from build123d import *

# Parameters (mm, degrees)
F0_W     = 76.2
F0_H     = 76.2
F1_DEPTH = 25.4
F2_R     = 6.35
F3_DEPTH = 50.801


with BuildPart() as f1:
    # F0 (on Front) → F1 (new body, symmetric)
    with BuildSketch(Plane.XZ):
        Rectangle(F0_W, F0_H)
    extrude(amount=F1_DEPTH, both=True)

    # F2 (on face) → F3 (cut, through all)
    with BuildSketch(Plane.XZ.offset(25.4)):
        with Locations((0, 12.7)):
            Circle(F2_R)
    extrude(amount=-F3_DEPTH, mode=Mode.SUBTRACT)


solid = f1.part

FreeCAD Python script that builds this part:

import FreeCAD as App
import Part
import Sketcher

V = App.Vector
Q = App.Units.Quantity

doc = App.newDocument("Part")
params = doc.addObject("Spreadsheet::Sheet", "Params")
for row, (alias, value) in enumerate([
    ("sketch1_width", "3 in"),
    ("pad1_length", "2 in"),
    ("sketch2_diameter", "0.5 in"),
], start=1):
    params.set(f"A{row}", alias)
    params.set(f"B{row}", "=" + value)
    params.setAlias(f"B{row}", alias)

body = doc.addObject("PartDesign::Body", "Body")

# Sketch on XZ plane
sketch1 = doc.addObject("Sketcher::SketchObject", "Sketch")
body.addObject(sketch1)
sketch1.AttachmentSupport = (doc.XZ_Plane, [""])
sketch1.MapMode = "FlatFace"
sketch1.addGeometry([
    Part.LineSegment(V(-38.1, 38.1, 0), V(-38.1, -38.1, 0)),
    Part.LineSegment(V(-38.1, -38.1, 0), V(38.1, -38.1, 0)),
    Part.LineSegment(V(38.1, -38.1, 0), V(38.1, 38.1, 0)),
    Part.LineSegment(V(38.1, 38.1, 0), V(-38.1, 38.1, 0)),
], False)
sketch1.addConstraint([
    Sketcher.Constraint("Coincident", 0, 2, 1, 1),
    Sketcher.Constraint("Coincident", 1, 2, 2, 1),
    Sketcher.Constraint("Coincident", 2, 2, 3, 1),
    Sketcher.Constraint("Coincident", 3, 2, 0, 1),
    Sketcher.Constraint("Vertical", 0),
    Sketcher.Constraint("Horizontal", 1),
    Sketcher.Constraint("Vertical", 2),
    Sketcher.Constraint("Horizontal", 3),
    Sketcher.Constraint("Symmetric", 0, 2, 2, 2, -1, 1),
    Sketcher.Constraint("Equal", 3, 0),
    Sketcher.Constraint("DistanceX", 1, 1, 1, 2, Q("3 in")),
])
sketch1.setExpression("Constraints[10]", "Params.sketch1_width")
pad1 = doc.addObject("PartDesign::Pad", "Pad")
body.addObject(pad1)
pad1.Profile = sketch1
pad1.setExpression("Length", "Params.pad1_length")
pad1.Midplane = True

# Sketch on XZ plane
sketch2 = doc.addObject("Sketcher::SketchObject", "Sketch001")
body.addObject(sketch2)
sketch2.AttachmentSupport = (doc.XZ_Plane, [""])
sketch2.MapMode = "FlatFace"
sketch2.AttachmentOffset = App.Placement(V(0, 0, 1 * 25.4), App.Rotation())
sketch2.addGeometry(Part.Circle(V(0, 12.7, 0), V(0, 0, 1), 6.35), False)
sketch2.addConstraint([
    Sketcher.Constraint("PointOnObject", 0, 3, -2),
    Sketcher.Constraint("Diameter", 0, Q("0.5 in")),
    Sketcher.Constraint("DistanceY", -1, 1, 0, 3, Q("0.5 in")),
])
sketch2.setExpression("Constraints[1]", "Params.sketch2_diameter")
pocket1 = doc.addObject("PartDesign::Pocket", "Pocket")
body.addObject(pocket1)
pocket1.Profile = sketch2
pocket1.Type = "ThroughAll"

doc.recompute()
